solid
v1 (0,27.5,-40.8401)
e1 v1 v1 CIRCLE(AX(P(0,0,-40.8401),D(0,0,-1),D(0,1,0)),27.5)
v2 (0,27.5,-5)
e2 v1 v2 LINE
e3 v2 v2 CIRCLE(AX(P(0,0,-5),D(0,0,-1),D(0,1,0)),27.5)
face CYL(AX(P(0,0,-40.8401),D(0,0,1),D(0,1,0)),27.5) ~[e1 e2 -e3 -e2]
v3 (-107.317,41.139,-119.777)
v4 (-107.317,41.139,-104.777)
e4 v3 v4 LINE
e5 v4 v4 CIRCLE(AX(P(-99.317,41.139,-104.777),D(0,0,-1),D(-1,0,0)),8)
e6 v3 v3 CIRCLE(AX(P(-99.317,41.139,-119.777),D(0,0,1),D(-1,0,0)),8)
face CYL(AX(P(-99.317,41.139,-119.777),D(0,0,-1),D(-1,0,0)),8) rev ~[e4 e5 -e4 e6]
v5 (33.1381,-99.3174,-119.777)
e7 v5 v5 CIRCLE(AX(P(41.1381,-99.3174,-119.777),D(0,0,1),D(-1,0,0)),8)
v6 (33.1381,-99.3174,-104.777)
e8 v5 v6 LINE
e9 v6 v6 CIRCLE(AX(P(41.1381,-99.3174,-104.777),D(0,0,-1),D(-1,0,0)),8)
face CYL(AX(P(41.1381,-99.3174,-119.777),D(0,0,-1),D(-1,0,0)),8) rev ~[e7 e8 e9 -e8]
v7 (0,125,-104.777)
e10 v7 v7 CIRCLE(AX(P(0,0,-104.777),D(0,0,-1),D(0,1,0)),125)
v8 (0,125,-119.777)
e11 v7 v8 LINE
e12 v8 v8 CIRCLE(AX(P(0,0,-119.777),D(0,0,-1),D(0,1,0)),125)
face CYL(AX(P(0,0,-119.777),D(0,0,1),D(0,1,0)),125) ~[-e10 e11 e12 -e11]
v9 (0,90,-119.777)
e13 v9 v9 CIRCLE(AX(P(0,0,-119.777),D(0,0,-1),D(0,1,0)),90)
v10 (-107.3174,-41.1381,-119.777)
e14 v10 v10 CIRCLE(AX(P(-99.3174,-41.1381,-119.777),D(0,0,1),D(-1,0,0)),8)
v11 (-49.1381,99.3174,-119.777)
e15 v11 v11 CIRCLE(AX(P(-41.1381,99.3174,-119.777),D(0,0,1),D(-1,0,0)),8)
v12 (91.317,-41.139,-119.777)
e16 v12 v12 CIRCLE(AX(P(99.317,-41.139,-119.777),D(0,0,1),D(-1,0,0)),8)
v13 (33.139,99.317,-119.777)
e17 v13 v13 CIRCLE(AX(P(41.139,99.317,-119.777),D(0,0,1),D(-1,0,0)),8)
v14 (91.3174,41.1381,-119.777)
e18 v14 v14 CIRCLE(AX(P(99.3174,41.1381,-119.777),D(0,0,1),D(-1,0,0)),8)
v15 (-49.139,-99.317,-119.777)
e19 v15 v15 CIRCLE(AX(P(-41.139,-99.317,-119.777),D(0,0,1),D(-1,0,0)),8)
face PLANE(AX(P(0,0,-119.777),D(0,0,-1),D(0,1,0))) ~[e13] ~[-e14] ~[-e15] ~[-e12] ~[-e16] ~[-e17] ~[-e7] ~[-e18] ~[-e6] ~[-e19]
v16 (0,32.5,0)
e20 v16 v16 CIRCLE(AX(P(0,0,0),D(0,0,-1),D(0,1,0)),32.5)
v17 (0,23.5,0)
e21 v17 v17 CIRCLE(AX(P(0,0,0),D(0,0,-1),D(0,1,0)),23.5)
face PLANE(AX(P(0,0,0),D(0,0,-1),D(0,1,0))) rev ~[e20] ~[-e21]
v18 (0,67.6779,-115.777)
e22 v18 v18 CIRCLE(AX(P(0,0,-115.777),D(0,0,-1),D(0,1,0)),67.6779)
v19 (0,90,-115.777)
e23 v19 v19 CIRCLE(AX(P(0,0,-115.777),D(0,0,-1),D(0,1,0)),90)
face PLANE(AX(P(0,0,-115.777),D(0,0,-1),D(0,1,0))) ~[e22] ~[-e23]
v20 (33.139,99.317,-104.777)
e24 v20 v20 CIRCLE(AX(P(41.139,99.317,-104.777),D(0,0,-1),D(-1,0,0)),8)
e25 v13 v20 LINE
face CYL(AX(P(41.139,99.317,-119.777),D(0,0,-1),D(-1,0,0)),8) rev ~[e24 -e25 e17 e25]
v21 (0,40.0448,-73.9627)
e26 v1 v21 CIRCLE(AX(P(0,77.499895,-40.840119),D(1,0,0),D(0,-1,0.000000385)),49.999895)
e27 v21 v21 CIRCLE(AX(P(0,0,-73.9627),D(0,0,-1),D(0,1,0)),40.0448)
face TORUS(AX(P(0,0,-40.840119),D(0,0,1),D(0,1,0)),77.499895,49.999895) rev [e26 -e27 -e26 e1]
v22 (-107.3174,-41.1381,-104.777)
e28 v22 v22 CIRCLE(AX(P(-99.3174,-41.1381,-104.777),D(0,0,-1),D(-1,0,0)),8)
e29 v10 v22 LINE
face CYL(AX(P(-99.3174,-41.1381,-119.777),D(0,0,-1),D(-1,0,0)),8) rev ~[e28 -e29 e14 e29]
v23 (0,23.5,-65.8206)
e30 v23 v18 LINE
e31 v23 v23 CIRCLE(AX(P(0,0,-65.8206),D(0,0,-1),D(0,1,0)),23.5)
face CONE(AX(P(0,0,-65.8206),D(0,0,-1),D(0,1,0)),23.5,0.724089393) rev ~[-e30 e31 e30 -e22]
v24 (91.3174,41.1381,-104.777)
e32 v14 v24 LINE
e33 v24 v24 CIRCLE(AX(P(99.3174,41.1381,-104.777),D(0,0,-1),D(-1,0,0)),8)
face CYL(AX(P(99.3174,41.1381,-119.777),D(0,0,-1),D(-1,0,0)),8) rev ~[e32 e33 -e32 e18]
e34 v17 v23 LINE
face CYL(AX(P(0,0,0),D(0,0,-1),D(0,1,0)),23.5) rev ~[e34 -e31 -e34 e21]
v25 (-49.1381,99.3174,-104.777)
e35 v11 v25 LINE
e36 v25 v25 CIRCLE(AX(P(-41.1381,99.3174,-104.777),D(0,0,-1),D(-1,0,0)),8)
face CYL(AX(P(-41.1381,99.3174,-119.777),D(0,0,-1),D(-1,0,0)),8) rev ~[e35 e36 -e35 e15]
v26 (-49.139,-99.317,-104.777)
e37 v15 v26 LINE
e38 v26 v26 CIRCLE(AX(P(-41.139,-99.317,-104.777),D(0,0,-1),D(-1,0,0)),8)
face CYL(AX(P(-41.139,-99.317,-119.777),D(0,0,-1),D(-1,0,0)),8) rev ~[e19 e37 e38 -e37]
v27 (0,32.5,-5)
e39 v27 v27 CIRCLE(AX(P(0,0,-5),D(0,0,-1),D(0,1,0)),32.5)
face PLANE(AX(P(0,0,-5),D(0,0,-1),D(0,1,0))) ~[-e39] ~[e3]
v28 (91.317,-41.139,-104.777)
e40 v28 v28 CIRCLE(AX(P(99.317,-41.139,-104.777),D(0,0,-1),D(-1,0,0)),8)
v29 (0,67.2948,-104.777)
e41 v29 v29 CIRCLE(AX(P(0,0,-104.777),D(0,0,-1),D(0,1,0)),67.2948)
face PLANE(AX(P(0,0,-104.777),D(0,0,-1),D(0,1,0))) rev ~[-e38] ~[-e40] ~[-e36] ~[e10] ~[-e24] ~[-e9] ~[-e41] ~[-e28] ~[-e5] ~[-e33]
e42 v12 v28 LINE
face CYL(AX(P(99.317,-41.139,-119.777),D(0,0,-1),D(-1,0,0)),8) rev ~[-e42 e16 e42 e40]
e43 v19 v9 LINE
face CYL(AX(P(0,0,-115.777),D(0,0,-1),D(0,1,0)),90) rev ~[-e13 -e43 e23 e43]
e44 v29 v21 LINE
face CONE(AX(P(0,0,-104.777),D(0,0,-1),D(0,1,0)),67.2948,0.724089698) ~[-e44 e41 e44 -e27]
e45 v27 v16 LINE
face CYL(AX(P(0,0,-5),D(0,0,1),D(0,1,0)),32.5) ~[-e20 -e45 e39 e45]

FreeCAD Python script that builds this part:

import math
import FreeCAD as App
import Part
import Sketcher
from FreeCAD import Vector
Q = App.Units.Quantity

doc = App.newDocument("Part")
body = doc.addObject("PartDesign::Body", "Body")

sketch1 = body.newObject("Sketcher::SketchObject", "Sketch")
sketch1.AttachmentSupport = (doc.getObject("YZ_Plane"), [""])
sketch1.MapMode = "FlatFace"
sketch1.addGeometry(Part.LineSegment(Vector(32.5, 0, 0), Vector(23.5, 0, 0)), False)
sketch1.addGeometry(Part.LineSegment(Vector(23.5, 0, 0), Vector(23.5, -65.8, 0)), False)
sketch1.addGeometry(Part.LineSegment(Vector(23.5, -65.8, 0), Vector(67.7, -115.8, 0)), False)
sketch1.addGeometry(Part.LineSegment(Vector(67.7, -115.8, 0), Vector(90, -115.8, 0)), False)
sketch1.addGeometry(Part.LineSegment(Vector(90, -115.8, 0), Vector(90, -119.8, 0)), False)
sketch1.addGeometry(Part.LineSegment(Vector(90, -119.8, 0), Vector(125, -119.8, 0)), False)
sketch1.addGeometry(Part.LineSegment(Vector(125, -119.8, 0), Vector(125, -104.8, 0)), False)
sketch1.addGeometry(Part.LineSegment(Vector(125, -104.8, 0), Vector(67.3, -104.8, 0)), False)
sketch1.addGeometry(Part.LineSegment(Vector(67.3, -104.8, 0), Vector(40, -74, 0)), False)
sketch1.addGeometry(Part.ArcOfCircle(Part.Circle(Vector(77.5, -40.8, 0), Vector(0, 0, 1), 50), math.radians(180), math.radians(221)), False)
sketch1.addGeometry(Part.LineSegment(Vector(27.5, -40.8, 0), Vector(27.5, -5, 0)), False)
sketch1.addGeometry(Part.LineSegment(Vector(27.5, -5, 0), Vector(32.5, -5, 0)), False)
sketch1.addGeometry(Part.LineSegment(Vector(32.5, -5, 0), Vector(32.5, 0, 0)), False)
sketch1.addConstraint(Sketcher.Constraint("Coincident", 0, 2, 1, 1))
sketch1.addConstraint(Sketcher.Constraint("Coincident", 1, 2, 2, 1))
sketch1.addConstraint(Sketcher.Constraint("Coincident", 2, 2, 3, 1))
sketch1.addConstraint(Sketcher.Constraint("Coincident", 3, 2, 4, 1))
sketch1.addConstraint(Sketcher.Constraint("Coincident", 4, 2, 5, 1))
sketch1.addConstraint(Sketcher.Constraint("Coincident", 5, 2, 6, 1))
sketch1.addConstraint(Sketcher.Constraint("Coincident", 6, 2, 7, 1))
sketch1.addConstraint(Sketcher.Constraint("Coincident", 7, 2, 8, 1))
sketch1.addConstraint(Sketcher.Constraint("Tangent", 8, 2, 9, 2))
sketch1.addConstraint(Sketcher.Constraint("Tangent", 9, 1, 10, 1))
sketch1.addConstraint(Sketcher.Constraint("Coincident", 10, 2, 11, 1))
sketch1.addConstraint(Sketcher.Constraint("Coincident", 11, 2, 12, 1))
sketch1.addConstraint(Sketcher.Constraint("Coincident", 12, 2, 0, 1))
sketch1.addConstraint(Sketcher.Constraint("Horizontal", 0))
sketch1.addConstraint(Sketcher.Constraint("Vertical", 1))
sketch1.addConstraint(Sketcher.Constraint("Horizontal", 3))
sketch1.addConstraint(Sketcher.Constraint("Vertical", 4))
sketch1.addConstraint(Sketcher.Constraint("Horizontal", 5))
sketch1.addConstraint(Sketcher.Constraint("Vertical", 6))
sketch1.addConstraint(Sketcher.Constraint("Horizontal", 7))
sketch1.addConstraint(Sketcher.Constraint("Vertical", 10))
sketch1.addConstraint(Sketcher.Constraint("Horizontal", 11))
sketch1.addConstraint(Sketcher.Constraint("Vertical", 12))
sketch1.addConstraint(Sketcher.Constraint("PointOnObject", 0, 2, -1))
sketch1.addConstraint(Sketcher.Constraint("Parallel", 2, 8))
sketch1.addConstraint(Sketcher.Constraint("Equal", 11, 12))
sketch1.addConstraint(Sketcher.Constraint("Radius", 9, Q("50 mm")))
sketch1.addConstraint(Sketcher.Constraint("DistanceX", 11, 1, 11, 2, Q("5 mm")))
sketch1.addConstraint(Sketcher.Constraint("DistanceY", 4, 2, 4, 1, Q("4 mm")))
sketch1.addConstraint(Sketcher.Constraint("DistanceY", 6, 1, 6, 2, Q("15 mm")))
sketch1.addConstraint(Sketcher.Constraint("DistanceX", 1, 2, 9, 1, Q("4 mm")))
sketch1.addConstraint(Sketcher.Constraint("DistanceX", 5, 1, 5, 2, Q("35 mm")))
sketch1.addConstraint(Sketcher.Constraint("DistanceX", -1, 1, 3, 2, Q("90 mm")))
sketch1.addConstraint(Sketcher.Constraint("DistanceY", 10, 1, 10, 2, Q("35.84 mm")))
sketch1.addConstraint(Sketcher.Constraint("DistanceX", -1, 1, 9, 3, Q("77.5 mm")))
sketch1.addConstraint(Sketcher.Constraint("DistanceX", 3, 1, 3, 2, Q("22.322 mm")))
sketch1.addConstraint(Sketcher.Constraint("DistanceX", 8, 2, 7, 2, Q("27.25 mm")))
sketch1.addConstraint(Sketcher.Constraint("Distance", 8, Q("41.135 mm")))
revolution = body.newObject("PartDesign::Revolution", "Revolution")
revolution.Profile = sketch1
revolution.ReferenceAxis = (sketch1, ["V_Axis"])
revolution.Angle = 360

sketch2 = body.newObject("Sketcher::SketchObject", "Sketch001")
sketch2.AttachmentSupport = (doc.getObject("XY_Plane"), [""])
sketch2.MapMode = "FlatFace"
sketch2.AttachmentOffset = App.Placement(Vector(0, 0, -119.777), App.Rotation())
sketch2.addGeometry(Part.Circle(Vector(41, 99, 0), Vector(0, 0, 1), 8), False)
sketch2.addGeometry(Part.Circle(Vector(-41, 99, 0), Vector(0, 0, 1), 8), False)
sketch2.addGeometry(Part.Circle(Vector(99, 41, 0), Vector(0, 0, 1), 8), False)
sketch2.addGeometry(Part.Circle(Vector(-99, 41, 0), Vector(0, 0, 1), 8), False)
sketch2.addGeometry(Part.Circle(Vector(99, -41, 0), Vector(0, 0, 1), 8), False)
sketch2.addGeometry(Part.Circle(Vector(41, -99, 0), Vector(0, 0, 1), 8), False)
sketch2.addGeometry(Part.Circle(Vector(-99, -41, 0), Vector(0, 0, 1), 8), False)
sketch2.addGeometry(Part.Circle(Vector(-41, -99, 0), Vector(0, 0, 1), 8), False)
sketch2.addConstraint(Sketcher.Constraint("Equal", 0, 1))
sketch2.addConstraint(Sketcher.Constraint("Equal", 1, 2))
sketch2.addConstraint(Sketcher.Constraint("Equal", 2, 3))
sketch2.addConstraint(Sketcher.Constraint("Equal", 3, 4))
sketch2.addConstraint(Sketcher.Constraint("Equal", 4, 5))
sketch2.addConstraint(Sketcher.Constraint("Equal", 5, 6))
sketch2.addConstraint(Sketcher.Constraint("Equal", 6, 7))
sketch2.addConstraint(Sketcher.Constraint("Symmetric", 3, 3, 4, 3, -1, 1))
sketch2.addConstraint(Sketcher.Constraint("Symmetric", 1, 3, 5, 3, -1, 1))
sketch2.addConstraint(Sketcher.Constraint("Symmetric", 2, 3, 6, 3, -1, 1))
sketch2.addConstraint(Sketcher.Constraint("Symmetric", 0, 3, 7, 3, -1, 1))
sketch2.addConstraint(Sketcher.Constraint("Diameter", 0, Q("16 mm")))
sketch2.addConstraint(Sketcher.Constraint("DistanceX", -1, 1, 0, 3, Q("41.139 mm")))
sketch2.addConstraint(Sketcher.Constraint("DistanceY", -1, 1, 0, 3, Q("99.317 mm")))
sketch2.addConstraint(Sketcher.Constraint("DistanceX", 3, 3, -1, 1, Q("99.317 mm")))
sketch2.addConstraint(Sketcher.Constraint("DistanceY", -1, 1, 3, 3, Q("41.139 mm")))
sketch2.addConstraint(Sketcher.Constraint("DistanceY", -1, 1, 1, 3, Q("99.3174 mm")))
sketch2.addConstraint(Sketcher.Constraint("DistanceX", -1, 1, 2, 3, Q("99.3174 mm")))
sketch2.addConstraint(Sketcher.Constraint("DistanceX", 1, 3, -1, 1, Q("41.138 mm")))
sketch2.addConstraint(Sketcher.Constraint("DistanceY", -1, 1, 2, 3, Q("41.138 mm")))
pocket1 = body.newObject("PartDesign::Pocket", "Pocket")
pocket1.Profile = sketch2
pocket1.Type = "ThroughAll"
pocket1.Reversed = True

doc.recompute()
